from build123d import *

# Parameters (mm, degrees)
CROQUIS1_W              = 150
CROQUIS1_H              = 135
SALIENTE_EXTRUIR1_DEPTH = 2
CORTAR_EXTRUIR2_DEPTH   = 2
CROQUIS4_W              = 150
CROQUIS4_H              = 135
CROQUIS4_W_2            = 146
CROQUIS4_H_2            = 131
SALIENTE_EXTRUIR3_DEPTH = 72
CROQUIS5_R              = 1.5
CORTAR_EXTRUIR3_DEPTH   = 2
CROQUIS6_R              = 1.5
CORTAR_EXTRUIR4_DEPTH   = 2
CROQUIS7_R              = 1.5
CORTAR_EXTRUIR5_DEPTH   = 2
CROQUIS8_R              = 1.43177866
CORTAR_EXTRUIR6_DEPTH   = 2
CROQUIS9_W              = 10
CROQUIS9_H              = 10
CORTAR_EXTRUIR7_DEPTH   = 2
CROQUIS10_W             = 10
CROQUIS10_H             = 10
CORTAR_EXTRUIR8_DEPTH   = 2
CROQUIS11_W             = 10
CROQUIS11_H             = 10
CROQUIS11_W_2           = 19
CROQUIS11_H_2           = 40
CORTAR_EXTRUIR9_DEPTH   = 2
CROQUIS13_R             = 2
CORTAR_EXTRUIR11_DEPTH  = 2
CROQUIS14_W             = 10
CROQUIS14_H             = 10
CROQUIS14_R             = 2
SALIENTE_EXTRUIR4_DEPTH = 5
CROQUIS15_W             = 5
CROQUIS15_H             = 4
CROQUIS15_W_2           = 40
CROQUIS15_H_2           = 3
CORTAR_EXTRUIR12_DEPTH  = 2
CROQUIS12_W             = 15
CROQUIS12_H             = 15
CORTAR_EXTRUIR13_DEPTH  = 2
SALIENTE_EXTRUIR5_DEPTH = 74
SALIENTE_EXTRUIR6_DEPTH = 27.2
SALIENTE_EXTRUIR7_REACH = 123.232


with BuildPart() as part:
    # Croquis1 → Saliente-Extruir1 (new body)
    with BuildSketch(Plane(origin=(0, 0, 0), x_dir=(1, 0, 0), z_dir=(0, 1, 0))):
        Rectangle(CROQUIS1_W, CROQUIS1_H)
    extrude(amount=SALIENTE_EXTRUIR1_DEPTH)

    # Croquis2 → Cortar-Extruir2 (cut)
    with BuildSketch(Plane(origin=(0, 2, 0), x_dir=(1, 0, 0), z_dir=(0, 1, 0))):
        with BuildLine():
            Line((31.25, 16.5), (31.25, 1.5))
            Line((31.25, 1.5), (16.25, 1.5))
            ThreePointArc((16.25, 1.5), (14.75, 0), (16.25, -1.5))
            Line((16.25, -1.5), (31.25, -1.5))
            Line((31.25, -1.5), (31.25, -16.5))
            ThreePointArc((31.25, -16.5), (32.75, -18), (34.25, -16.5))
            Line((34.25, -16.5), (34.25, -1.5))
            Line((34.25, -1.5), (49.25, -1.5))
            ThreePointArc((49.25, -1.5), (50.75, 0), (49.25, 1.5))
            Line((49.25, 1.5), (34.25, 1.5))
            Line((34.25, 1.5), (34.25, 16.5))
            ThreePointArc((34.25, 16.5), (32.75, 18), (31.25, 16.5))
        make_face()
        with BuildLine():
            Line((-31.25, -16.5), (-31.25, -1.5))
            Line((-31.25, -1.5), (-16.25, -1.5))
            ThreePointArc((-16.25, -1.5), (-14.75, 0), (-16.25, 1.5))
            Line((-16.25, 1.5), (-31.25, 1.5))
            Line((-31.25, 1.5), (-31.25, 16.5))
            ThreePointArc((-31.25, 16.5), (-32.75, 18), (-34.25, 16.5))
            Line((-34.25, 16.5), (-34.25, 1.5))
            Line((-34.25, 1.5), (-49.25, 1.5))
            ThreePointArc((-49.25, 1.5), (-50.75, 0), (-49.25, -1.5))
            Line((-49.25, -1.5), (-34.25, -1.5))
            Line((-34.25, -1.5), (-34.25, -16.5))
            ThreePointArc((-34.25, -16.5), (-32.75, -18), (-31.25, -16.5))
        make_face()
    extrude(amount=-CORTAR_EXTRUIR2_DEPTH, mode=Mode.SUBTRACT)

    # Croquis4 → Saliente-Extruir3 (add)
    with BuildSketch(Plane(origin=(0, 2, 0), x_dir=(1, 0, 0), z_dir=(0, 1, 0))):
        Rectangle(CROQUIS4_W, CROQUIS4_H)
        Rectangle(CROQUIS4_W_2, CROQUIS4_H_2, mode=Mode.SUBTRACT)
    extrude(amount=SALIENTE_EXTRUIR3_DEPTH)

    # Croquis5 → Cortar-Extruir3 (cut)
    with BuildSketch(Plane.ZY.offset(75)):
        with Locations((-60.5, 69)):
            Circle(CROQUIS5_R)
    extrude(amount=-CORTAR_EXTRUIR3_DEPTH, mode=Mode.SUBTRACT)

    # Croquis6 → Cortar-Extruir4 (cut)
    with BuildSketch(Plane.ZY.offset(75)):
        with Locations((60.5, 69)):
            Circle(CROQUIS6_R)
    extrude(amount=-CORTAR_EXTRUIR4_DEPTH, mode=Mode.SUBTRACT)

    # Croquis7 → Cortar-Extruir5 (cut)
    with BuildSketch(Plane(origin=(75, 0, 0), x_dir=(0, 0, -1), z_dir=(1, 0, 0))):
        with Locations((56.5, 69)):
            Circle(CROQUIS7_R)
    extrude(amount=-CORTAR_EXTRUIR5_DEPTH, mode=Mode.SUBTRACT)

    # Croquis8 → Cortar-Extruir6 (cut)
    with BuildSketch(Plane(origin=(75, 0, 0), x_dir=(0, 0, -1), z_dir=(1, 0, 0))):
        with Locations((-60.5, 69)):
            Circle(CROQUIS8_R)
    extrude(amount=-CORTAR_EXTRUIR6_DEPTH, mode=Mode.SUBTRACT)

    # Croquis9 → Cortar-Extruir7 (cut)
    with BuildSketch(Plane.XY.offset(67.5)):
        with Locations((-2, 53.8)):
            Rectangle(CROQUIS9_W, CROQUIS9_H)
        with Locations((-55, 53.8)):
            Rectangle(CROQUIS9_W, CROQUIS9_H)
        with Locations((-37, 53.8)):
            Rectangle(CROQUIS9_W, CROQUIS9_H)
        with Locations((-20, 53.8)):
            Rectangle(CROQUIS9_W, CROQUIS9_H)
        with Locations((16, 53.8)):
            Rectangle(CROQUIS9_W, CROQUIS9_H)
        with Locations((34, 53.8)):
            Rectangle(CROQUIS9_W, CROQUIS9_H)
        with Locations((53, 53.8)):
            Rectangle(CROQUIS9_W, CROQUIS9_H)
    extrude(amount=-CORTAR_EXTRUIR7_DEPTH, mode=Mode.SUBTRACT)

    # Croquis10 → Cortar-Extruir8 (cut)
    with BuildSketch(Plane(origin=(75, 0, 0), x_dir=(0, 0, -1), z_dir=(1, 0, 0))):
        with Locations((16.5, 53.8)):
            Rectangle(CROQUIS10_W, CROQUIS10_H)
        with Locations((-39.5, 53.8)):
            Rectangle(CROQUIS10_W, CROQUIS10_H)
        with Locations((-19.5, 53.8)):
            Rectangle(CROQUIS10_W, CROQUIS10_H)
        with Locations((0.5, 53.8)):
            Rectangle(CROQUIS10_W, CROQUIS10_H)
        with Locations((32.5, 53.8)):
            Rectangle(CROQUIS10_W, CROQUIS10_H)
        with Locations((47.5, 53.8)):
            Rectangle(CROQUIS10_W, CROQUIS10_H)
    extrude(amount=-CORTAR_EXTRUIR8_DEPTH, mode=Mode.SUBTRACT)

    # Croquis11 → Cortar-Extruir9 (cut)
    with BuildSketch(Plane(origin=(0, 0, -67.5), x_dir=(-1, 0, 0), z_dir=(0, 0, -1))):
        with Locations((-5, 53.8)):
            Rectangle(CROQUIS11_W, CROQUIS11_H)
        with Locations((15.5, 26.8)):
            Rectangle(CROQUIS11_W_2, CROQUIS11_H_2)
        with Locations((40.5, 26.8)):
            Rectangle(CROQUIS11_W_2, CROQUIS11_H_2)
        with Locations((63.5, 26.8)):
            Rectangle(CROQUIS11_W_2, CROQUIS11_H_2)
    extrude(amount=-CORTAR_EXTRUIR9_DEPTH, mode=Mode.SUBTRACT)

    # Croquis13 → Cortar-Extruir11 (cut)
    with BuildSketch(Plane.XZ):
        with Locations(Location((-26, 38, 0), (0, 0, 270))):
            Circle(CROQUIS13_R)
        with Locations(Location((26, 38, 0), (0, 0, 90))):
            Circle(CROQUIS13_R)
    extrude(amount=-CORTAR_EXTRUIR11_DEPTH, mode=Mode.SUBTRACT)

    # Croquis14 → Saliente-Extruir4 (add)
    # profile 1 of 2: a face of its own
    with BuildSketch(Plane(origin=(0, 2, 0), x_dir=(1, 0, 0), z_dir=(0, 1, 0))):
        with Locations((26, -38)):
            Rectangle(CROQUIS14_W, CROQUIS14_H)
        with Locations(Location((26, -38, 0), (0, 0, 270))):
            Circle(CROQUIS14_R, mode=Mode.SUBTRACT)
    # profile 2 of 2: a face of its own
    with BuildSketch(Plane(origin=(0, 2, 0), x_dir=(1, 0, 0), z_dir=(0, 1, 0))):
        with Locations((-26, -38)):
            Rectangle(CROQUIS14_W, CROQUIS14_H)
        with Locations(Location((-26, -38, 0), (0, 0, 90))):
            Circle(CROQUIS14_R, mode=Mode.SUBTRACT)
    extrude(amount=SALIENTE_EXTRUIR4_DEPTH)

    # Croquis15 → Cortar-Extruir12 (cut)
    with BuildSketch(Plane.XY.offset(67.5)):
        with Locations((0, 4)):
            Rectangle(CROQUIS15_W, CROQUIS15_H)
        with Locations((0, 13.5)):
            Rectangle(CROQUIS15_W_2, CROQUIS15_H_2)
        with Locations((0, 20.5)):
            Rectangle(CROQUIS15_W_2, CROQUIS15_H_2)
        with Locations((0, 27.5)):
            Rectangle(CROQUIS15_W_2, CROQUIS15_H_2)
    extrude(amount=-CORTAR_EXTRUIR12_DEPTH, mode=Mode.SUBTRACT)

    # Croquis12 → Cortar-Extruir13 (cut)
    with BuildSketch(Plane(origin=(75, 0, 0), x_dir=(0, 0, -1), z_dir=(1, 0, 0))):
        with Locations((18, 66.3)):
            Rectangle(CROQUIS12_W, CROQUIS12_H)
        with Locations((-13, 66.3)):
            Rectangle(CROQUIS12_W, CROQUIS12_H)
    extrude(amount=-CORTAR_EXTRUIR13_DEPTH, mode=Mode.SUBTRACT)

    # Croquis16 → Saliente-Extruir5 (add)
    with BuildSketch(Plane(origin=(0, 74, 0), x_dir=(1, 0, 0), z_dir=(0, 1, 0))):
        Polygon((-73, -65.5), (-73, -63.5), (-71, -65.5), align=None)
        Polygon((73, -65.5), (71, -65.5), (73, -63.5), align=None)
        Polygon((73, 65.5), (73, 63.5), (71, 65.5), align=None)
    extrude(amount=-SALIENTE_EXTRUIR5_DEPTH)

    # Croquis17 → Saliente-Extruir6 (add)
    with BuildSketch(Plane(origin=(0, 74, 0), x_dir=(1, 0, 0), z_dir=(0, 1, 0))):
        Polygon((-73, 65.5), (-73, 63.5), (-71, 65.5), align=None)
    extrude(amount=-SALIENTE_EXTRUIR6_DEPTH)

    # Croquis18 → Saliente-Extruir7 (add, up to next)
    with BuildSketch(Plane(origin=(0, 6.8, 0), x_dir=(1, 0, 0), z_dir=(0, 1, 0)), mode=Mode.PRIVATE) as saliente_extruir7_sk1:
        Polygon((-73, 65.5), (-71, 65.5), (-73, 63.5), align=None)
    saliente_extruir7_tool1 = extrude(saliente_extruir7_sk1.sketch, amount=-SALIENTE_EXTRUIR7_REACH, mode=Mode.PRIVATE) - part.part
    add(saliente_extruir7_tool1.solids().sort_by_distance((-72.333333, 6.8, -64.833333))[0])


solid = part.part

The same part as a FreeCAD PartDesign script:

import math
import FreeCAD as App
import Part
import Sketcher

doc = App.newDocument("Part")
body = doc.addObject("PartDesign::Body", "Body")

# Sketch on XZ plane
sketch1 = body.newObject("Sketcher::SketchObject", "Sketch")
sketch1.AttachmentSupport = (doc.getObject("XZ_Plane"), [""])
sketch1.MapMode = "FlatFace"
sketch1.addGeometry([
    Part.LineSegment(App.Vector(-75, -67.5, 0), App.Vector(-75, 67.5, 0)),
    Part.LineSegment(App.Vector(-75, 67.5, 0), App.Vector(75, 67.5, 0)),
    Part.LineSegment(App.Vector(75, 67.5, 0), App.Vector(75, -67.5, 0)),
    Part.LineSegment(App.Vector(75, -67.5, 0), App.Vector(-75, -67.5, 0)),
], False)
sketch1.addConstraint([
    Sketcher.Constraint("Coincident", 0, 2, 1, 1),
    Sketcher.Constraint("Coincident", 1, 2, 2, 1),
    Sketcher.Constraint("Coincident", 2, 2, 3, 1),
    Sketcher.Constraint("Coincident", 3, 2, 0, 1),
    Sketcher.Constraint("Vertical", 0),
    Sketcher.Constraint("Horizontal", 1),
    Sketcher.Constraint("Vertical", 2),
    Sketcher.Constraint("Horizontal", 3),
    Sketcher.Constraint("Symmetric", 0, 2, 2, 2, -1, 1),
    Sketcher.Constraint("DistanceX", 1, 1, 1, 2, 150.0),
    Sketcher.Constraint("DistanceY", 0, 1, 0, 2, 135.0),
])
pad1 = body.newObject("PartDesign::Pad", "Pad")
pad1.Profile = sketch1
pad1.Length = 2
pad1.Reversed = True

# Sketch on XZ plane
sketch2 = body.newObject("Sketcher::SketchObject", "Sketch001")
sketch2.AttachmentSupport = (doc.getObject("XZ_Plane"), [""])
sketch2.MapMode = "FlatFace"
sketch2.AttachmentOffset = App.Placement(App.Vector(0, 0, -2), App.Rotation())
sketch2.addGeometry([
    Part.LineSegment(App.Vector(31.25, -16.5, 0), App.Vector(31.25, -1.5, 0)),  # 0
    Part.LineSegment(App.Vector(31.25, -1.5, 0), App.Vector(16.25, -1.5, 0)),  # 1
    Part.ArcOfCircle(Part.Circle(App.Vector(16.25, 0, 0), App.Vector(0, 0, 1), 1.5), math.radians(90), math.radians(270)),  # 2
    Part.LineSegment(App.Vector(16.25, 1.5, 0), App.Vector(31.25, 1.5, 0)),  # 3
    Part.LineSegment(App.Vector(31.25, 1.5, 0), App.Vector(31.25, 16.5, 0)),  # 4
    Part.ArcOfCircle(Part.Circle(App.Vector(32.75, 16.5, 0), App.Vector(0, 0, 1), 1.5), math.radians(0), math.radians(180)),  # 5
    Part.LineSegment(App.Vector(34.25, 16.5, 0), App.Vector(34.25, 1.5, 0)),  # 6
    Part.LineSegment(App.Vector(34.25, 1.5, 0), App.Vector(49.25, 1.5, 0)),  # 7
    Part.ArcOfCircle(Part.Circle(App.Vector(49.25, 0, 0), App.Vector(0, 0, 1), 1.5), math.radians(-90), math.radians(90)),  # 8
    Part.LineSegment(App.Vector(49.25, -1.5, 0), App.Vector(34.25, -1.5, 0)),  # 9
    Part.LineSegment(App.Vector(34.25, -1.5, 0), App.Vector(34.25, -16.5, 0)),  # 10
    Part.ArcOfCircle(Part.Circle(App.Vector(32.75, -16.5, 0), App.Vector(0, 0, 1), 1.5), math.radians(180), math.radians(360)),  # 11
    Part.LineSegment(App.Vector(-31.25, 16.5, 0), App.Vector(-31.25, 1.5, 0)),  # 12
    Part.LineSegment(App.Vector(-31.25, 1.5, 0), App.Vector(-16.25, 1.5, 0)),  # 13
    Part.ArcOfCircle(Part.Circle(App.Vector(-16.25, 0, 0), App.Vector(0, 0, 1), 1.5), math.radians(-90), math.radians(90)),  # 14
    Part.LineSegment(App.Vector(-16.25, -1.5, 0), App.Vector(-31.25, -1.5, 0)),  # 15
    Part.LineSegment(App.Vector(-31.25, -1.5, 0), App.Vector(-31.25, -16.5, 0)),  # 16
    Part.ArcOfCircle(Part.Circle(App.Vector(-32.75, -16.5, 0), App.Vector(0, 0, 1), 1.5), math.radians(180), math.radians(360)),  # 17
    Part.LineSegment(App.Vector(-34.25, -16.5, 0), App.Vector(-34.25, -1.5, 0)),  # 18
    Part.LineSegment(App.Vector(-34.25, -1.5, 0), App.Vector(-49.25, -1.5, 0)),  # 19
    Part.ArcOfCircle(Part.Circle(App.Vector(-49.25, 0, 0), App.Vector(0, 0, 1), 1.5), math.radians(90), math.radians(270)),  # 20
    Part.LineSegment(App.Vector(-49.25, 1.5, 0), App.Vector(-34.25, 1.5, 0)),  # 21
    Part.LineSegment(App.Vector(-34.25, 1.5, 0), App.Vector(-34.25, 16.5, 0)),  # 22
    Part.ArcOfCircle(Part.Circle(App.Vector(-32.75, 16.5, 0), App.Vector(0, 0, 1), 1.5), math.radians(0), math.radians(180)),  # 23
], False)
sketch2.addConstraint([
    Sketcher.Constraint("Coincident", 0, 2, 1, 1),
    Sketcher.Constraint("Tangent", 1, 2, 2, 2),
    Sketcher.Constraint("Tangent", 2, 1, 3, 1),
    Sketcher.Constraint("Coincident", 3, 2, 4, 1),
    Sketcher.Constraint("Tangent", 4, 2, 5, 2),
    Sketcher.Constraint("Tangent", 5, 1, 6, 1),
    Sketcher.Constraint("Coincident", 6, 2, 7, 1),
    Sketcher.Constraint("Tangent", 7, 2, 8, 2),
    Sketcher.Constraint("Tangent", 8, 1, 9, 1),
    Sketcher.Constraint("Coincident", 9, 2, 10, 1),
    Sketcher.Constraint("Tangent", 10, 2, 11, 2),
    Sketcher.Constraint("Tangent", 11, 1, 0, 1),
    Sketcher.Constraint("Coincident", 12, 2, 13, 1),
    Sketcher.Constraint("Tangent", 13, 2, 14, 2),
    Sketcher.Constraint("Tangent", 14, 1, 15, 1),
    Sketcher.Constraint("Coincident", 15, 2, 16, 1),
    Sketcher.Constraint("Tangent", 16, 2, 17, 2),
    Sketcher.Constraint("Tangent", 17, 1, 18, 1),
    Sketcher.Constraint("Coincident", 18, 2, 19, 1),
    Sketcher.Constraint("Tangent", 19, 2, 20, 2),
    Sketcher.Constraint("Tangent", 20, 1, 21, 1),
    Sketcher.Constraint("Coincident", 21, 2, 22, 1),
    Sketcher.Constraint("Tangent", 22, 2, 23, 2),
    Sketcher.Constraint("Tangent", 23, 1, 12, 1),
    Sketcher.Constraint("Vertical", 0),
    Sketcher.Constraint("Horizontal", 1),
    Sketcher.Constraint("Horizontal", 3),
    Sketcher.Constraint("Vertical", 4),
    Sketcher.Constraint("Vertical", 6),
    Sketcher.Constraint("Horizontal", 7),
    Sketcher.Constraint("Horizontal", 9),
    Sketcher.Constraint("Vertical", 10),
    Sketcher.Constraint("Vertical", 12),
    Sketcher.Constraint("Horizontal", 13),
    Sketcher.Constraint("Horizontal", 15),
    Sketcher.Constraint("Vertical", 16),
    Sketcher.Constraint("Vertical", 18),
    Sketcher.Constraint("Horizontal", 19),
    Sketcher.Constraint("Horizontal", 21),
    Sketcher.Constraint("Vertical", 22),
    Sketcher.Constraint("Equal", 2, 5),
    Sketcher.Constraint("Equal", 5, 8),
    Sketcher.Constraint("Equal", 8, 11),
    Sketcher.Constraint("Equal", 11, 14),
    Sketcher.Constraint("Equal", 14, 17),
    Sketcher.Constraint("Equal", 17, 20),
    Sketcher.Constraint("Equal", 20, 23),
    Sketcher.Constraint("Symmetric", 2, 3, 14, 3, -1, 1),
    Sketcher.Constraint("Symmetric", 5, 3, 17, 3, -1, 1),
    Sketcher.Constraint("Symmetric", 8, 3, 20, 3, -1, 1),
    Sketcher.Constraint("Symmetric", 11, 3, 23, 3, -1, 1),
    Sketcher.Constraint("Symmetric", 11, 3, 17, 3, -2),
    Sketcher.Constraint("PointOnObject", 2, 3, -1),
    Sketcher.Constraint("PointOnObject", 8, 3, -1),
    Sketcher.Constraint("Equal", 3, 7),
    Sketcher.Constraint("Equal", 21, 0),
    Sketcher.Constraint("Radius", 2, 1.5),
    Sketcher.Constraint("DistanceX", 1, 2, 1, 1, 15.0),
    Sketcher.Constraint("DistanceX", 14, 3, 5, 3, 49.0),
])
pocket1 = body.newObject("PartDesign::Pocket", "Pocket")
pocket1.Profile = sketch2
pocket1.Length = 2
pocket1.Reversed = True

# Sketch on XZ plane
sketch3 = body.newObject("Sketcher::SketchObject", "Sketch002")
sketch3.AttachmentSupport = (doc.getObject("XZ_Plane"), [""])
sketch3.MapMode = "FlatFace"
sketch3.AttachmentOffset = App.Placement(App.Vector(0, 0, -2), App.Rotation())
sketch3.addGeometry([
    Part.LineSegment(App.Vector(-75, -67.5, 0), App.Vector(-75, 67.5, 0)),  # 0
    Part.LineSegment(App.Vector(-75, 67.5, 0), App.Vector(75, 67.5, 0)),  # 1
    Part.LineSegment(App.Vector(75, 67.5, 0), App.Vector(75, -67.5, 0)),  # 2
    Part.LineSegment(App.Vector(75, -67.5, 0), App.Vector(-75, -67.5, 0)),  # 3
    Part.LineSegment(App.Vector(73, 65.5, 0), App.Vector(-73, 65.5, 0)),  # 4
    Part.LineSegment(App.Vector(-73, 65.5, 0), App.Vector(-73, -65.5, 0)),  # 5
    Part.LineSegment(App.Vector(-73, -65.5, 0), App.Vector(73, -65.5, 0)),  # 6
    Part.LineSegment(App.Vector(73, -65.5, 0), App.Vector(73, 65.5, 0)),  # 7
], False)
sketch3.addConstraint([
    Sketcher.Constraint("Coincident", 0, 2, 1, 1),
    Sketcher.Constraint("Coincident", 1, 2, 2, 1),
    Sketcher.Constraint("Coincident", 2, 2, 3, 1),
    Sketcher.Constraint("Coincident", 3, 2, 0, 1),
    Sketcher.Constraint("Coincident", 4, 2, 5, 1),
    Sketcher.Constraint("Coincident", 5, 2, 6, 1),
    Sketcher.Constraint("Coincident", 6, 2, 7, 1),
    Sketcher.Constraint("Coincident", 7, 2, 4, 1),
    Sketcher.Constraint("Vertical", 0),
    Sketcher.Constraint("Horizontal", 1),
    Sketcher.Constraint("Vertical", 2),
    Sketcher.Constraint("Horizontal", 3),
    Sketcher.Constraint("Horizontal", 4),
    Sketcher.Constraint("Vertical", 5),
    Sketcher.Constraint("Horizontal", 6),
    Sketcher.Constraint("Vertical", 7),
    Sketcher.Constraint("Symmetric", 0, 2, 2, 2, -1, 1),
    Sketcher.Constraint("Symmetric", 4, 2, 6, 2, -1, 1),
    Sketcher.Constraint("DistanceX", 1, 1, 1, 2, 150.0),
    Sketcher.Constraint("DistanceX", 4, 2, 4, 1, 146.0),
    Sketcher.Constraint("DistanceY", 0, 1, 0, 2, 135.0),
    Sketcher.Constraint("DistanceY", 5, 2, 5, 1, 131.0),
])
pad2 = body.newObject("PartDesign::Pad", "Pad001")
pad2.Profile = sketch3
pad2.Length = 72
pad2.Reversed = True

# Sketch on YZ plane
sketch4 = body.newObject("Sketcher::SketchObject", "Sketch003")
sketch4.AttachmentSupport = (doc.getObject("YZ_Plane"), [""])
sketch4.MapMode = "FlatFace"
sketch4.AttachmentOffset = App.Placement(App.Vector(0, 0, -75), App.Rotation())
sketch4.addGeometry(Part.Circle(App.Vector(69, -60.5, 0), App.Vector(0, 0, 1), 1.5), False)
sketch4.addConstraint([
    Sketcher.Constraint("Diameter", 0, 3.0),
    Sketcher.Constraint("DistanceX", -1, 1, 0, 3, 69.0),
    Sketcher.Constraint("DistanceY", 0, 3, -1, 1, 60.5),
])
pocket2 = body.newObject("PartDesign::Pocket", "Pocket001")
pocket2.Profile = sketch4
pocket2.Length = 2
pocket2.Reversed = True

# Sketch on YZ plane
sketch5 = body.newObject("Sketcher::SketchObject", "Sketch004")
sketch5.AttachmentSupport = (doc.getObject("YZ_Plane"), [""])
sketch5.MapMode = "FlatFace"
sketch5.AttachmentOffset = App.Placement(App.Vector(0, 0, -75), App.Rotation())
sketch5.addGeometry(Part.Circle(App.Vector(69, 60.5, 0), App.Vector(0, 0, 1), 1.5), False)
sketch5.addConstraint([
    Sketcher.Constraint("Diameter", 0, 3.0),
    Sketcher.Constraint("DistanceX", -1, 1, 0, 3, 69.0),
    Sketcher.Constraint("DistanceY", -1, 1, 0, 3, 60.5),
])
pocket3 = body.newObject("PartDesign::Pocket", "Pocket002")
pocket3.Profile = sketch5
pocket3.Length = 2
pocket3.Reversed = True

# Sketch on YZ plane
sketch6 = body.newObject("Sketcher::SketchObject", "Sketch005")
sketch6.AttachmentSupport = (doc.getObject("YZ_Plane"), [""])
sketch6.MapMode = "FlatFace"
sketch6.AttachmentOffset = App.Placement(App.Vector(0, 0, 75), App.Rotation())
sketch6.addGeometry(Part.Circle(App.Vector(69, -56.5, 0), App.Vector(0, 0, 1), 1.5), False)
sketch6.addConstraint([
    Sketcher.Constraint("Diameter", 0, 3.0),
    Sketcher.Constraint("DistanceX", -1, 1, 0, 3, 69.0),
    Sketcher.Constraint("DistanceY", 0, 3, -1, 1, 56.5),
])
pocket4 = body.newObject("PartDesign::Pocket", "Pocket003")
pocket4.Profile = sketch6
pocket4.Length = 2

# Sketch on YZ plane
sketch7 = body.newObject("Sketcher::SketchObject", "Sketch006")
sketch7.AttachmentSupport = (doc.getObject("YZ_Plane"), [""])
sketch7.MapMode = "FlatFace"
sketch7.AttachmentOffset = App.Placement(App.Vector(0, 0, 75), App.Rotation())
sketch7.addGeometry(Part.Circle(App.Vector(69, 60.5, 0), App.Vector(0, 0, 1), 1.431779), False)
sketch7.addConstraint([
    Sketcher.Constraint("DistanceX", -1, 1, 0, 3, 69.0),
    Sketcher.Constraint("DistanceY", -1, 1, 0, 3, 60.5),
    Sketcher.Constraint("Diameter", 0, 2.863557),
])
pocket5 = body.newObject("PartDesign::Pocket", "Pocket004")
pocket5.Profile = sketch7
pocket5.Length = 2

# Sketch on XY plane
sketch8 = body.newObject("Sketcher::SketchObject", "Sketch007")
sketch8.AttachmentSupport = (doc.getObject("XY_Plane"), [""])
sketch8.MapMode = "FlatFace"
sketch8.AttachmentOffset = App.Placement(App.Vector(0, 0, 67.5), App.Rotation())
sketch8.addGeometry([
    Part.LineSegment(App.Vector(-7, 58.8, 0), App.Vector(-7, 48.8, 0)),  # 0
    Part.LineSegment(App.Vector(-7, 48.8, 0), App.Vector(3, 48.8, 0)),  # 1
    Part.LineSegment(App.Vector(3, 48.8, 0), App.Vector(3, 58.8, 0)),  # 2
    Part.LineSegment(App.Vector(3, 58.8, 0), App.Vector(-7, 58.8, 0)),  # 3
    Part.LineSegment(App.Vector(-60, 58.8, 0), App.Vector(-60, 48.8, 0)),  # 4
    Part.LineSegment(App.Vector(-60, 48.8, 0), App.Vector(-50, 48.8, 0)),  # 5
    Part.LineSegment(App.Vector(-50, 48.8, 0), App.Vector(-50, 58.8, 0)),  # 6
    Part.LineSegment(App.Vector(-50, 58.8, 0), App.Vector(-60, 58.8, 0)),  # 7
    Part.LineSegment(App.Vector(-42, 58.8, 0), App.Vector(-42, 48.8, 0)),  # 8
    Part.LineSegment(App.Vector(-42, 48.8, 0), App.Vector(-32, 48.8, 0)),  # 9
    Part.LineSegment(App.Vector(-32, 48.8, 0), App.Vector(-32, 58.8, 0)),  # 10
    Part.LineSegment(App.Vector(-32, 58.8, 0), App.Vector(-42, 58.8, 0)),  # 11
    Part.LineSegment(App.Vector(-25, 58.8, 0), App.Vector(-25, 48.8, 0)),  # 12
    Part.LineSegment(App.Vector(-25, 48.8, 0), App.Vector(-15, 48.8, 0)),  # 13
    Part.LineSegment(App.Vector(-15, 48.8, 0), App.Vector(-15, 58.8, 0)),  # 14
    Part.LineSegment(App.Vector(-15, 58.8, 0), App.Vector(-25, 58.8, 0)),  # 15
    Part.LineSegment(App.Vector(11, 58.8, 0), App.Vector(11, 48.8, 0)),  # 16
    Part.LineSegment(App.Vector(11, 48.8, 0), App.Vector(21, 48.8, 0)),  # 17
    Part.LineSegment(App.Vector(21, 48.8, 0), App.Vector(21, 58.8, 0)),  # 18
    Part.LineSegment(App.Vector(21, 58.8, 0), App.Vector(11, 58.8, 0)),  # 19
    Part.LineSegment(App.Vector(29, 58.8, 0), App.Vector(29, 48.8, 0)),  # 20
    Part.LineSegment(App.Vector(29, 48.8, 0), App.Vector(39, 48.8, 0)),  # 21
    Part.LineSegment(App.Vector(39, 48.8, 0), App.Vector(39, 58.8, 0)),  # 22
    Part.LineSegment(App.Vector(39, 58.8, 0), App.Vector(29, 58.8, 0)),  # 23
    Part.LineSegment(App.Vector(48, 58.8, 0), App.Vector(48, 48.8, 0)),  # 24
    Part.LineSegment(App.Vector(48, 48.8, 0), App.Vector(58, 48.8, 0)),  # 25
    Part.LineSegment(App.Vector(58, 48.8, 0), App.Vector(58, 58.8, 0)),  # 26
    Part.LineSegment(App.Vector(58, 58.8, 0), App.Vector(48, 58.8, 0)),  # 27
], False)
sketch8.addConstraint([
    Sketcher.Constraint("Coincident", 0, 2, 1, 1),
    Sketcher.Constraint("Coincident", 1, 2, 2, 1),
    Sketcher.Constraint("Coincident", 2, 2, 3, 1),
    Sketcher.Constraint("Coincident", 3, 2, 0, 1),
    Sketcher.Constraint("Coincident", 4, 2, 5, 1),
    Sketcher.Constraint("Coincident", 5, 2, 6, 1),
    Sketcher.Constraint("Coincident", 6, 2, 7, 1),
    Sketcher.Constraint("Coincident", 7, 2, 4, 1),
    Sketcher.Constraint("Coincident", 8, 2, 9, 1),
    Sketcher.Constraint("Coincident", 9, 2, 10, 1),
    Sketcher.Constraint("Coincident", 10, 2, 11, 1),
    Sketcher.Constraint("Coincident", 11, 2, 8, 1),
    Sketcher.Constraint("Coincident", 12, 2, 13, 1),
    Sketcher.Constraint("Coincident", 13, 2, 14, 1),
    Sketcher.Constraint("Coincident", 14, 2, 15, 1),
    Sketcher.Constraint("Coincident", 15, 2, 12, 1),
    Sketcher.Constraint("Coincident", 16, 2, 17, 1),
    Sketcher.Constraint("Coincident", 17, 2, 18, 1),
    Sketcher.Constraint("Coincident", 18, 2, 19, 1),
    Sketcher.Constraint("Coincident", 19, 2, 16, 1),
    Sketcher.Constraint("Coincident", 20, 2, 21, 1),
    Sketcher.Constraint("Coincident", 21, 2, 22, 1),
    Sketcher.Constraint("Coincident", 22, 2, 23, 1),
    Sketcher.Constraint("Coincident", 23, 2, 20, 1),
    Sketcher.Constraint("Coincident", 24, 2, 25, 1),
    Sketcher.Constraint("Coincident", 25, 2, 26, 1),
    Sketcher.Constraint("Coincident", 26, 2, 27, 1),
    Sketcher.Constraint("Coincident", 27, 2, 24, 1),
    Sketcher.Constraint("Vertical", 0),
    Sketcher.Constraint("Horizontal", 1),
    Sketcher.Constraint("Vertical", 2),
    Sketcher.Constraint("Horizontal", 3),
    Sketcher.Constraint("Vertical", 4),
    Sketcher.Constraint("Horizontal", 5),
    Sketcher.Constraint("Vertical", 6),
    Sketcher.Constraint("Horizontal", 7),
    Sketcher.Constraint("Vertical", 8),
    Sketcher.Constraint("Horizontal", 9),
    Sketcher.Constraint("Vertical", 10),
    Sketcher.Constraint("Horizontal", 11),
    Sketcher.Constraint("Vertical", 12),
    Sketcher.Constraint("Horizontal", 13),
    Sketcher.Constraint("Vertical", 14),
    Sketcher.Constraint("Horizontal", 15),
    Sketcher.Constraint("Vertical", 16),
    Sketcher.Constraint("Horizontal", 17),
    Sketcher.Constraint("Vertical", 18),
    Sketcher.Constraint("Horizontal", 19),
    Sketcher.Constraint("Vertical", 20),
    Sketcher.Constraint("Horizontal", 21),
    Sketcher.Constraint("Vertical", 22),
    Sketcher.Constraint("Horizontal", 23),
    Sketcher.Constraint("Vertical", 24),
    Sketcher.Constraint("Horizontal", 25),
    Sketcher.Constraint("Vertical", 26),
    Sketcher.Constraint("Horizontal", 27),
    Sketcher.Constraint("Horizontal", 1, 2, 4, 2),
    Sketcher.Constraint("Horizontal", 3, 2, 6, 2),
    Sketcher.Constraint("Horizontal", 5, 2, 8, 2),
    Sketcher.Constraint("Horizontal", 7, 2, 10, 2),
    Sketcher.Constraint("Horizontal", 9, 2, 12, 2),
    Sketcher.Constraint("Horizontal", 11, 2, 14, 2),
    Sketcher.Constraint("Horizontal", 13, 2, 16, 2),
    Sketcher.Constraint("Horizontal", 15, 2, 18, 2),
    Sketcher.Constraint("Horizontal", 17, 2, 20, 2),
    Sketcher.Constraint("Horizontal", 19, 2, 22, 2),
    Sketcher.Constraint("Horizontal", 21, 2, 24, 2),
    Sketcher.Constraint("Horizontal", 23, 2, 26, 2),
    Sketcher.Constraint("Equal", 3, 5),
    Sketcher.Constraint("Equal", 7, 9),
    Sketcher.Constraint("Equal", 11, 13),
    Sketcher.Constraint("Equal", 15, 17),
    Sketcher.Constraint("Equal", 19, 21),
    Sketcher.Constraint("Equal", 23, 25),
    Sketcher.Constraint("Equal", 27, 0),
    Sketcher.Constraint("DistanceX", 1, 1, 1, 2, 10.0),
    Sketcher.Constraint("DistanceX", 0, 2, -1, 1, 7.0),
    Sketcher.Constraint("DistanceX", 4, 2, -1, 1, 60.0),
    Sketcher.Constraint("DistanceX", 8, 2, -1, 1, 42.0),
    Sketcher.Constraint("DistanceX", 12, 2, -1, 1, 25.0),
    Sketcher.Constraint("DistanceX", -1, 1, 16, 2, 11.0),
    Sketcher.Constraint("DistanceX", -1, 1, 20, 2, 29.0),
    Sketcher.Constraint("DistanceX", -1, 1, 24, 2, 48.0),
    Sketcher.Constraint("DistanceY", -1, 1, 0, 2, 48.8),
])
pocket6 = body.newObject("PartDesign::Pocket", "Pocket005")
pocket6.Profile = sketch8
pocket6.Length = 2

# Sketch on YZ plane
sketch9 = body.newObject("Sketcher::SketchObject", "Sketch008")
sketch9.AttachmentSupport = (doc.getObject("YZ_Plane"), [""])
sketch9.MapMode = "FlatFace"
sketch9.AttachmentOffset = App.Placement(App.Vector(0, 0, 75), App.Rotation())
sketch9.addGeometry([
    Part.LineSegment(App.Vector(58.8, -11.5, 0), App.Vector(48.8, -11.5, 0)),  # 0
    Part.LineSegment(App.Vector(48.8, -11.5, 0), App.Vector(48.8, -21.5, 0)),  # 1
    Part.LineSegment(App.Vector(48.8, -21.5, 0), App.Vector(58.8, -21.5, 0)),  # 2
    Part.LineSegment(App.Vector(58.8, -21.5, 0), App.Vector(58.8, -11.5, 0)),  # 3
    Part.LineSegment(App.Vector(58.8, 44.5, 0), App.Vector(48.8, 44.5, 0)),  # 4
    Part.LineSegment(App.Vector(48.8, 44.5, 0), App.Vector(48.8, 34.5, 0)),  # 5
    Part.LineSegment(App.Vector(48.8, 34.5, 0), App.Vector(58.8, 34.5, 0)),  # 6
    Part.LineSegment(App.Vector(58.8, 34.5, 0), App.Vector(58.8, 44.5, 0)),  # 7
    Part.LineSegment(App.Vector(58.8, 24.5, 0), App.Vector(48.8, 24.5, 0)),  # 8
    Part.LineSegment(App.Vector(48.8, 24.5, 0), App.Vector(48.8, 14.5, 0)),  # 9
    Part.LineSegment(App.Vector(48.8, 14.5, 0), App.Vector(58.8, 14.5, 0)),  # 10
    Part.LineSegment(App.Vector(58.8, 14.5, 0), App.Vector(58.8, 24.5, 0)),  # 11
    Part.LineSegment(App.Vector(58.8, 4.5, 0), App.Vector(48.8, 4.5, 0)),  # 12
    Part.LineSegment(App.Vector(48.8, 4.5, 0), App.Vector(48.8, -5.5, 0)),  # 13
    Part.LineSegment(App.Vector(48.8, -5.5, 0), App.Vector(58.8, -5.5, 0)),  # 14
    Part.LineSegment(App.Vector(58.8, -5.5, 0), App.Vector(58.8, 4.5, 0)),  # 15
    Part.LineSegment(App.Vector(58.8, -27.5, 0), App.Vector(48.8, -27.5, 0)),  # 16
    Part.LineSegment(App.Vector(48.8, -27.5, 0), App.Vector(48.8, -37.5, 0)),  # 17
    Part.LineSegment(App.Vector(48.8, -37.5, 0), App.Vector(58.8, -37.5, 0)),  # 18
    Part.LineSegment(App.Vector(58.8, -37.5, 0), App.Vector(58.8, -27.5, 0)),  # 19
    Part.LineSegment(App.Vector(58.8, -42.5, 0), App.Vector(48.8, -42.5, 0)),  # 20
    Part.LineSegment(App.Vector(48.8, -42.5, 0), App.Vector(48.8, -52.5, 0)),  # 21
    Part.LineSegment(App.Vector(48.8, -52.5, 0), App.Vector(58.8, -52.5, 0)),  # 22
    Part.LineSegment(App.Vector(58.8, -52.5, 0), App.Vector(58.8, -42.5, 0)),  # 23
], False)
sketch9.addConstraint([
    Sketcher.Constraint("Coincident", 0, 2, 1, 1),
    Sketcher.Constraint("Coincident", 1, 2, 2, 1),
    Sketcher.Constraint("Coincident", 2, 2, 3, 1),
    Sketcher.Constraint("Coincident", 3, 2, 0, 1),
    Sketcher.Constraint("Coincident", 4, 2, 5, 1),
    Sketcher.Constraint("Coincident", 5, 2, 6, 1),
    Sketcher.Constraint("Coincident", 6, 2, 7, 1),
    Sketcher.Constraint("Coincident", 7, 2, 4, 1),
    Sketcher.Constraint("Coincident", 8, 2, 9, 1),
    Sketcher.Constraint("Coincident", 9, 2, 10, 1),
    Sketcher.Constraint("Coincident", 10, 2, 11, 1),
    Sketcher.Constraint("Coincident", 11, 2, 8, 1),
    Sketcher.Constraint("Coincident", 12, 2, 13, 1),
    Sketcher.Constraint("Coincident", 13, 2, 14, 1),
    Sketcher.Constraint("Coincident", 14, 2, 15, 1),
    Sketcher.Constraint("Coincident", 15, 2, 12, 1),
    Sketcher.Constraint("Coincident", 16, 2, 17, 1),
    Sketcher.Constraint("Coincident", 17, 2, 18, 1),
    Sketcher.Constraint("Coincident", 18, 2, 19, 1),
    Sketcher.Constraint("Coincident", 19, 2, 16, 1),
    Sketcher.Constraint("Coincident", 20, 2, 21, 1),
    Sketcher.Constraint("Coincident", 21, 2, 22, 1),
    Sketcher.Constraint("Coincident", 22, 2, 23, 1),
    Sketcher.Constraint("Coincident", 23, 2, 20, 1),
    Sketcher.Constraint("Horizontal", 0),
    Sketcher.Constraint("Vertical", 1),
    Sketcher.Constraint("Horizontal", 2),
    Sketcher.Constraint("Vertical", 3),
    Sketcher.Constraint("Horizontal", 4),
    Sketcher.Constraint("Vertical", 5),
    Sketcher.Constraint("Horizontal", 6),
    Sketcher.Constraint("Vertical", 7),
    Sketcher.Constraint("Horizontal", 8),
    Sketcher.Constraint("Vertical", 9),
    Sketcher.Constraint("Horizontal", 10),
    Sketcher.Constraint("Vertical", 11),
    Sketcher.Constraint("Horizontal", 12),
    Sketcher.Constraint("Vertical", 13),
    Sketcher.Constraint("Horizontal", 14),
    Sketcher.Constraint("Vertical", 15),
    Sketcher.Constraint("Horizontal", 16),
    Sketcher.Constraint("Vertical", 17),
    Sketcher.Constraint("Horizontal", 18),
    Sketcher.Constraint("Vertical", 19),
    Sketcher.Constraint("Horizontal", 20),
    Sketcher.Constraint("Vertical", 21),
    Sketcher.Constraint("Horizontal", 22),
    Sketcher.Constraint("Vertical", 23),
    Sketcher.Constraint("Vertical", 1, 2, 4, 2),
    Sketcher.Constraint("Vertical", 3, 2, 6, 2),
    Sketcher.Constraint("Vertical", 5, 2, 8, 2),
    Sketcher.Constraint("Vertical", 7, 2, 10, 2),
    Sketcher.Constraint("Vertical", 9, 2, 12, 2),
    Sketcher.Constraint("Vertical", 11, 2, 14, 2),
    Sketcher.Constraint("Vertical", 13, 2, 16, 2),
    Sketcher.Constraint("Vertical", 15, 2, 18, 2),
    Sketcher.Constraint("Vertical", 17, 2, 20, 2),
    Sketcher.Constraint("Vertical", 19, 2, 22, 2),
    Sketcher.Constraint("Equal", 22, 1),
    Sketcher.Constraint("Equal", 3, 5),
    Sketcher.Constraint("Equal", 7, 9),
    Sketcher.Constraint("Equal", 11, 13),
    Sketcher.Constraint("Equal", 15, 17),
    Sketcher.Constraint("Equal", 19, 21),
    Sketcher.Constraint("DistanceX", 0, 2, 0, 1, 10.0),
    Sketcher.Constraint("DistanceY", 0, 2, 4, 2, 56.0),
    Sketcher.Constraint("DistanceY", 8, 2, 5, 2, 10.0),
    Sketcher.Constraint("DistanceY", 12, 2, 9, 2, 10.0),
    Sketcher.Constraint("DistanceY", 16, 2, 1, 2, 6.0),
    Sketcher.Constraint("DistanceY", 20, 2, 17, 2, 5.0),
    Sketcher.Constraint("DistanceX", -1, 1, 0, 2, 48.8),
    Sketcher.Constraint("DistanceY", 0, 2, -1, 1, 11.5),
])
pocket7 = body.newObject("PartDesign::Pocket", "Pocket006")
pocket7.Profile = sketch9
pocket7.Length = 2

# Sketch on XY plane
sketch10 = body.newObject("Sketcher::SketchObject", "Sketch009")
sketch10.AttachmentSupport = (doc.getObject("XY_Plane"), [""])
sketch10.MapMode = "FlatFace"
sketch10.AttachmentOffset = App.Placement(App.Vector(0, 0, -67.5), App.Rotation())
sketch10.addGeometry([
    Part.LineSegment(App.Vector(10, 58.8, 0), App.Vector(10, 48.8, 0)),  # 0
    Part.LineSegment(App.Vector(10, 48.8, 0), App.Vector(0, 48.8, 0)),  # 1
    Part.LineSegment(App.Vector(0, 48.8, 0), App.Vector(0, 58.8, 0)),  # 2
    Part.LineSegment(App.Vector(0, 58.8, 0), App.Vector(10, 58.8, 0)),  # 3
    Part.LineSegment(App.Vector(-6, 46.8, 0), App.Vector(-6, 6.8, 0)),  # 4
    Part.LineSegment(App.Vector(-6, 6.8, 0), App.Vector(-25, 6.8, 0)),  # 5
    Part.LineSegment(App.Vector(-25, 6.8, 0), App.Vector(-25, 46.8, 0)),  # 6
    Part.LineSegment(App.Vector(-25, 46.8, 0), App.Vector(-6, 46.8, 0)),  # 7
    Part.LineSegment(App.Vector(-31, 46.8, 0), App.Vector(-31, 6.8, 0)),  # 8
    Part.LineSegment(App.Vector(-31, 6.8, 0), App.Vector(-50, 6.8, 0)),  # 9
    Part.LineSegment(App.Vector(-50, 6.8, 0), App.Vector(-50, 46.8, 0)),  # 10
    Part.LineSegment(App.Vector(-50, 46.8, 0), App.Vector(-31, 46.8, 0)),  # 11
    Part.LineSegment(App.Vector(-54, 46.8, 0), App.Vector(-54, 6.8, 0)),  # 12
    Part.LineSegment(App.Vector(-54, 6.8, 0), App.Vector(-73, 6.8, 0)),  # 13
    Part.LineSegment(App.Vector(-73, 6.8, 0), App.Vector(-73, 46.8, 0)),  # 14
    Part.LineSegment(App.Vector(-73, 46.8, 0), App.Vector(-54, 46.8, 0)),  # 15
], False)
sketch10.addConstraint([
    Sketcher.Constraint("Coincident", 0, 2, 1, 1),
    Sketcher.Constraint("Coincident", 1, 2, 2, 1),
    Sketcher.Constraint("Coincident", 2, 2, 3, 1),
    Sketcher.Constraint("Coincident", 3, 2, 0, 1),
    Sketcher.Constraint("Coincident", 4, 2, 5, 1),
    Sketcher.Constraint("Coincident", 5, 2, 6, 1),
    Sketcher.Constraint("Coincident", 6, 2, 7, 1),
    Sketcher.Constraint("Coincident", 7, 2, 4, 1),
    Sketcher.Constraint("Coincident", 8, 2, 9, 1),
    Sketcher.Constraint("Coincident", 9, 2, 10, 1),
    Sketcher.Constraint("Coincident", 10, 2, 11, 1),
    Sketcher.Constraint("Coincident", 11, 2, 8, 1),
    Sketcher.Constraint("Coincident", 12, 2, 13, 1),
    Sketcher.Constraint("Coincident", 13, 2, 14, 1),
    Sketcher.Constraint("Coincident", 14, 2, 15, 1),
    Sketcher.Constraint("Coincident", 15, 2, 12, 1),
    Sketcher.Constraint("Vertical", 0),
    Sketcher.Constraint("Horizontal", 1),
    Sketcher.Constraint("Vertical", 2),
    Sketcher.Constraint("Horizontal", 3),
    Sketcher.Constraint("Vertical", 4),
    Sketcher.Constraint("Horizontal", 5),
    Sketcher.Constraint("Vertical", 6),
    Sketcher.Constraint("Horizontal", 7),
    Sketcher.Constraint("Vertical", 8),
    Sketcher.Constraint("Horizontal", 9),
    Sketcher.Constraint("Vertical", 10),
    Sketcher.Constraint("Horizontal", 11),
    Sketcher.Constraint("Vertical", 12),
    Sketcher.Constraint("Horizontal", 13),
    Sketcher.Constraint("Vertical", 14),
    Sketcher.Constraint("Horizontal", 15),
    Sketcher.Constraint("PointOnObject", 1, 2, -2),
    Sketcher.Constraint("Horizontal", 5, 2, 8, 2),
    Sketcher.Constraint("Horizontal", 7, 2, 10, 2),
    Sketcher.Constraint("Horizontal", 9, 2, 12, 2),
    Sketcher.Constraint("Horizontal", 11, 2, 14, 2),
    Sketcher.Constraint("Equal", 7, 9),
    Sketcher.Constraint("Equal", 11, 13),
    Sketcher.Constraint("Equal", 3, 0),
    Sketcher.Constraint("DistanceX", 1, 2, 1, 1, 10.0),
    Sketcher.Constraint("DistanceX", 5, 2, 5, 1, 19.0),
    Sketcher.Constraint("DistanceY", 4, 2, 4, 1, 40.0),
    Sketcher.Constraint("DistanceX", 4, 2, -1, 1, 6.0),
    Sketcher.Constraint("DistanceX", 8, 2, -1, 1, 31.0),
    Sketcher.Constraint("DistanceX", 12, 2, -1, 1, 54.0),
    Sketcher.Constraint("DistanceY", 4, 2, 1, 2, 42.0),
    Sketcher.Constraint("DistanceY", -1, 1, 0, 2, 48.8),
])
pocket8 = body.newObject("PartDesign::Pocket", "Pocket007")
pocket8.Profile = sketch10
pocket8.Length = 2
pocket8.Reversed = True

# Sketch on XZ plane
sketch11 = body.newObject("Sketcher::SketchObject", "Sketch010")
sketch11.AttachmentSupport = (doc.getObject("XZ_Plane"), [""])
sketch11.MapMode = "FlatFace"
sketch11.addGeometry([
    Part.Circle(App.Vector(-26, 38, 0), App.Vector(0, 0, 1), 2),
    Part.Circle(App.Vector(26, 38, 0), App.Vector(0, 0, 1), 2),
], False)
sketch11.addConstraint([
    Sketcher.Constraint("Equal", 0, 1),
    Sketcher.Constraint("Symmetric", 0, 3, 1, 3, -2),
    Sketcher.Constraint("Diameter", 0, 4.0),
    Sketcher.Constraint("DistanceX", 0, 3, -1, 1, 26.0),
    Sketcher.Constraint("DistanceY", -1, 1, 0, 3, 38.0),
])
pocket9 = body.newObject("PartDesign::Pocket", "Pocket008")
pocket9.Profile = sketch11
pocket9.Length = 2

# Sketch on XZ plane
sketch12 = body.newObject("Sketcher::SketchObject", "Sketch011")
sketch12.AttachmentSupport = (doc.getObject("XZ_Plane"), [""])
sketch12.MapMode = "FlatFace"
sketch12.AttachmentOffset = App.Placement(App.Vector(0, 0, -2), App.Rotation())
sketch12.addGeometry([
    Part.LineSegment(App.Vector(21, 33, 0), App.Vector(21, 43, 0)),  # 0
    Part.LineSegment(App.Vector(21, 43, 0), App.Vector(31, 43, 0)),  # 1
    Part.LineSegment(App.Vector(31, 43, 0), App.Vector(31, 33, 0)),  # 2
    Part.LineSegment(App.Vector(31, 33, 0), App.Vector(21, 33, 0)),  # 3
    Part.Circle(App.Vector(26, 38, 0), App.Vector(0, 0, 1), 2),  # 4
    Part.LineSegment(App.Vector(-31, 33, 0), App.Vector(-31, 43, 0)),  # 5
    Part.LineSegment(App.Vector(-31, 43, 0), App.Vector(-21, 43, 0)),  # 6
    Part.LineSegment(App.Vector(-21, 43, 0), App.Vector(-21, 33, 0)),  # 7
    Part.LineSegment(App.Vector(-21, 33, 0), App.Vector(-31, 33, 0)),  # 8
    Part.Circle(App.Vector(-26, 38, 0), App.Vector(0, 0, 1), 2),  # 9
], False)
sketch12.addConstraint([
    Sketcher.Constraint("Coincident", 0, 2, 1, 1),
    Sketcher.Constraint("Coincident", 1, 2, 2, 1),
    Sketcher.Constraint("Coincident", 2, 2, 3, 1),
    Sketcher.Constraint("Coincident", 3, 2, 0, 1),
    Sketcher.Constraint("Coincident", 5, 2, 6, 1),
    Sketcher.Constraint("Coincident", 6, 2, 7, 1),
    Sketcher.Constraint("Coincident", 7, 2, 8, 1),
    Sketcher.Constraint("Coincident", 8, 2, 5, 1),
    Sketcher.Constraint("Vertical", 0),
    Sketcher.Constraint("Horizontal", 1),
    Sketcher.Constraint("Vertical", 2),
    Sketcher.Constraint("Horizontal", 3),
    Sketcher.Constraint("Vertical", 5),
    Sketcher.Constraint("Horizontal", 6),
    Sketcher.Constraint("Vertical", 7),
    Sketcher.Constraint("Horizontal", 8),
    Sketcher.Constraint("Equal", 4, 9),
    Sketcher.Constraint("Symmetric", 4, 3, 9, 3, -2),
    Sketcher.Constraint("Symmetric", 1, 2, 5, 2, -2),
    Sketcher.Constraint("Symmetric", 3, 2, 7, 2, -2),
    Sketcher.Constraint("Equal", 8, 0),
    Sketcher.Constraint("Diameter", 4, 4.0),
    Sketcher.Constraint("DistanceX", 1, 1, 1, 2, 10.0),
    Sketcher.Constraint("DistanceX", -1, 1, 4, 3, 26.0),
    Sketcher.Constraint("DistanceY", -1, 1, 4, 3, 38.0),
    Sketcher.Constraint("DistanceX", -1, 1, 0, 2, 21.0),
    Sketcher.Constraint("DistanceY", -1, 1, 0, 2, 43.0),
])
pad3 = body.newObject("PartDesign::Pad", "Pad002")
pad3.Profile = sketch12
pad3.Length = 5
pad3.Reversed = True

# Sketch on XY plane
sketch13 = body.newObject("Sketcher::SketchObject", "Sketch012")
sketch13.AttachmentSupport = (doc.getObject("XY_Plane"), [""])
sketch13.MapMode = "FlatFace"
sketch13.AttachmentOffset = App.Placement(App.Vector(0, 0, 67.5), App.Rotation())
sketch13.addGeometry([
    Part.LineSegment(App.Vector(-2.5, 6, 0), App.Vector(-2.5, 2, 0)),  # 0
    Part.LineSegment(App.Vector(-2.5, 2, 0), App.Vector(2.5, 2, 0)),  # 1
    Part.LineSegment(App.Vector(2.5, 2, 0), App.Vector(2.5, 6, 0)),  # 2
    Part.LineSegment(App.Vector(2.5, 6, 0), App.Vector(-2.5, 6, 0)),  # 3
    Part.LineSegment(App.Vector(-20, 15, 0), App.Vector(-20, 12, 0)),  # 4
    Part.LineSegment(App.Vector(-20, 12, 0), App.Vector(20, 12, 0)),  # 5
    Part.LineSegment(App.Vector(20, 12, 0), App.Vector(20, 15, 0)),  # 6
    Part.LineSegment(App.Vector(20, 15, 0), App.Vector(-20, 15, 0)),  # 7
    Part.LineSegment(App.Vector(-20, 22, 0), App.Vector(-20, 19, 0)),  # 8
    Part.LineSegment(App.Vector(-20, 19, 0), App.Vector(20, 19, 0)),  # 9
    Part.LineSegment(App.Vector(20, 19, 0), App.Vector(20, 22, 0)),  # 10
    Part.LineSegment(App.Vector(20, 22, 0), App.Vector(-20, 22, 0)),  # 11
    Part.LineSegment(App.Vector(-20, 29, 0), App.Vector(-20, 26, 0)),  # 12
    Part.LineSegment(App.Vector(-20, 26, 0), App.Vector(20, 26, 0)),  # 13
    Part.LineSegment(App.Vector(20, 26, 0), App.Vector(20, 29, 0)),  # 14
    Part.LineSegment(App.Vector(20, 29, 0), App.Vector(-20, 29, 0)),  # 15
], False)
sketch13.addConstraint([
    Sketcher.Constraint("Coincident", 0, 2, 1, 1),
    Sketcher.Constraint("Coincident", 1, 2, 2, 1),
    Sketcher.Constraint("Coincident", 2, 2, 3, 1),
    Sketcher.Constraint("Coincident", 3, 2, 0, 1),
    Sketcher.Constraint("Coincident", 4, 2, 5, 1),
    Sketcher.Constraint("Coincident", 5, 2, 6, 1),
    Sketcher.Constraint("Coincident", 6, 2, 7, 1),
    Sketcher.Constraint("Coincident", 7, 2, 4, 1),
    Sketcher.Constraint("Coincident", 8, 2, 9, 1),
    Sketcher.Constraint("Coincident", 9, 2, 10, 1),
    Sketcher.Constraint("Coincident", 10, 2, 11, 1),
    Sketcher.Constraint("Coincident", 11, 2, 8, 1),
    Sketcher.Constraint("Coincident", 12, 2, 13, 1),
    Sketcher.Constraint("Coincident", 13, 2, 14, 1),
    Sketcher.Constraint("Coincident", 14, 2, 15, 1),
    Sketcher.Constraint("Coincident", 15, 2, 12, 1),
    Sketcher.Constraint("Vertical", 0),
    Sketcher.Constraint("Horizontal", 1),
    Sketcher.Constraint("Vertical", 2),
    Sketcher.Constraint("Horizontal", 3),
    Sketcher.Constraint("Vertical", 4),
    Sketcher.Constraint("Horizontal", 5),
    Sketcher.Constraint("Vertical", 6),
    Sketcher.Constraint("Horizontal", 7),
    Sketcher.Constraint("Vertical", 8),
    Sketcher.Constraint("Horizontal", 9),
    Sketcher.Constraint("Vertical", 10),
    Sketcher.Constraint("Horizontal", 11),
    Sketcher.Constraint("Vertical", 12),
    Sketcher.Constraint("Horizontal", 13),
    Sketcher.Constraint("Vertical", 14),
    Sketcher.Constraint("Horizontal", 15),
    Sketcher.Constraint("Vertical", 7, 2, 8, 2),
    Sketcher.Constraint("Vertical", 6, 2, 9, 2),
    Sketcher.Constraint("Vertical", 11, 2, 12, 2),
    Sketcher.Constraint("Vertical", 10, 2, 13, 2),
    Sketcher.Constraint("Equal", 6, 8),
    Sketcher.Constraint("Equal", 10, 12),
    Sketcher.Constraint("DistanceX", 1, 1, 1, 2, 5.0),
    Sketcher.Constraint("DistanceX", 5, 1, 5, 2, 40.0),
    Sketcher.Constraint("DistanceY", 0, 2, 0, 1, 4.0),
    Sketcher.Constraint("DistanceY", 4, 2, 4, 1, 3.0),
    Sketcher.Constraint("DistanceY", -1, 1, 0, 2, 2.0),
    Sketcher.Constraint("DistanceX", 4, 2, -1, 1, 20.0),
    Sketcher.Constraint("DistanceY", -1, 1, 4, 2, 12.0),
    Sketcher.Constraint("DistanceY", -1, 1, 8, 2, 19.0),
    Sketcher.Constraint("DistanceY", -1, 1, 12, 2, 26.0),
    Sketcher.Constraint("DistanceX", 0, 2, -1, 1, 2.5),
])
pocket10 = body.newObject("PartDesign::Pocket", "Pocket009")
pocket10.Profile = sketch13
pocket10.Length = 2

# Sketch on YZ plane
sketch14 = body.newObject("Sketcher::SketchObject", "Sketch013")
sketch14.AttachmentSupport = (doc.getObject("YZ_Plane"), [""])
sketch14.MapMode = "FlatFace"
sketch14.AttachmentOffset = App.Placement(App.Vector(0, 0, 75), App.Rotation())
sketch14.addGeometry([
    Part.LineSegment(App.Vector(73.8, -10.5, 0), App.Vector(58.8, -10.5, 0)),  # 0
    Part.LineSegment(App.Vector(58.8, -10.5, 0), App.Vector(58.8, -25.5, 0)),  # 1
    Part.LineSegment(App.Vector(58.8, -25.5, 0), App.Vector(73.8, -25.5, 0)),  # 2
    Part.LineSegment(App.Vector(73.8, -25.5, 0), App.Vector(73.8, -10.5, 0)),  # 3
    Part.LineSegment(App.Vector(73.8, 20.5, 0), App.Vector(58.8, 20.5, 0)),  # 4
    Part.LineSegment(App.Vector(58.8, 20.5, 0), App.Vector(58.8, 5.5, 0)),  # 5
    Part.LineSegment(App.Vector(58.8, 5.5, 0), App.Vector(73.8, 5.5, 0)),  # 6
    Part.LineSegment(App.Vector(73.8, 5.5, 0), App.Vector(73.8, 20.5, 0)),  # 7
], False)
sketch14.addConstraint([
    Sketcher.Constraint("Coincident", 0, 2, 1, 1),
    Sketcher.Constraint("Coincident", 1, 2, 2, 1),
    Sketcher.Constraint("Coincident", 2, 2, 3, 1),
    Sketcher.Constraint("Coincident", 3, 2, 0, 1),
    Sketcher.Constraint("Coincident", 4, 2, 5, 1),
    Sketcher.Constraint("Coincident", 5, 2, 6, 1),
    Sketcher.Constraint("Coincident", 6, 2, 7, 1),
    Sketcher.Constraint("Coincident", 7, 2, 4, 1),
    Sketcher.Constraint("Horizontal", 0),
    Sketcher.Constraint("Vertical", 1),
    Sketcher.Constraint("Horizontal", 2),
    Sketcher.Constraint("Vertical", 3),
    Sketcher.Constraint("Horizontal", 4),
    Sketcher.Constraint("Vertical", 5),
    Sketcher.Constraint("Horizontal", 6),
    Sketcher.Constraint("Vertical", 7),
    Sketcher.Constraint("Vertical", 1, 2, 4, 2),
    Sketcher.Constraint("Vertical", 3, 2, 6, 2),
    Sketcher.Constraint("Equal", 6, 1),
    Sketcher.Constraint("Equal", 3, 5),
    Sketcher.Constraint("DistanceX", 0, 2, 0, 1, 15.0),
    Sketcher.Constraint("DistanceY", 0, 2, 4, 2, 31.0),
    Sketcher.Constraint("DistanceX", -1, 1, 0, 2, 58.8),
    Sketcher.Constraint("DistanceY", 0, 2, -1, 1, 10.5),
])
pocket11 = body.newObject("PartDesign::Pocket", "Pocket010")
pocket11.Profile = sketch14
pocket11.Length = 2

# Sketch on XZ plane
sketch15 = body.newObject("Sketcher::SketchObject", "Sketch014")
sketch15.AttachmentSupport = (doc.getObject("XZ_Plane"), [""])
sketch15.MapMode = "FlatFace"
sketch15.AttachmentOffset = App.Placement(App.Vector(0, 0, -74), App.Rotation())
sketch15.addGeometry([
    Part.LineSegment(App.Vector(-73, 63.5, 0), App.Vector(-73, 65.5, 0)),  # 0
    Part.LineSegment(App.Vector(-73, 65.5, 0), App.Vector(-71, 65.5, 0)),  # 1
    Part.LineSegment(App.Vector(-71, 65.5, 0), App.Vector(-73, 63.5, 0)),  # 2
    Part.LineSegment(App.Vector(71, 65.5, 0), App.Vector(73, 65.5, 0)),  # 3
    Part.LineSegment(App.Vector(73, 65.5, 0), App.Vector(73, 63.5, 0)),  # 4
    Part.LineSegment(App.Vector(73, 63.5, 0), App.Vector(71, 65.5, 0)),  # 5
    Part.LineSegment(App.Vector(73, -63.5, 0), App.Vector(73, -65.5, 0)),  # 6
    Part.LineSegment(App.Vector(73, -65.5, 0), App.Vector(71, -65.5, 0)),  # 7
    Part.LineSegment(App.Vector(71, -65.5, 0), App.Vector(73, -63.5, 0)),  # 8
], False)
sketch15.addConstraint([
    Sketcher.Constraint("Coincident", 0, 2, 1, 1),
    Sketcher.Constraint("Coincident", 1, 2, 2, 1),
    Sketcher.Constraint("Coincident", 2, 2, 0, 1),
    Sketcher.Constraint("Coincident", 3, 2, 4, 1),
    Sketcher.Constraint("Coincident", 4, 2, 5, 1),
    Sketcher.Constraint("Coincident", 5, 2, 3, 1),
    Sketcher.Constraint("Coincident", 6, 2, 7, 1),
    Sketcher.Constraint("Coincident", 7, 2, 8, 1),
    Sketcher.Constraint("Coincident", 8, 2, 6, 1),
    Sketcher.Constraint("Vertical", 0),
    Sketcher.Constraint("Horizontal", 1),
    Sketcher.Constraint("Horizontal", 3),
    Sketcher.Constraint("Vertical", 4),
    Sketcher.Constraint("Vertical", 6),
    Sketcher.Constraint("Horizontal", 7),
    Sketcher.Constraint("Symmetric", 0, 2, 6, 2, -1, 1),
    Sketcher.Constraint("Symmetric", 0, 2, 3, 2, -2),
    Sketcher.Constraint("Perpendicular", 2, 5),
    Sketcher.Constraint("Perpendicular", 5, 8),
    Sketcher.Constraint("Horizontal", 2, 2, 4, 2),
    Sketcher.Constraint("Vertical", 5, 2, 7, 2),
    Sketcher.Constraint("Equal", 1, 3),
    Sketcher.Constraint("DistanceX", 1, 1, 1, 2, 2.0),
    Sketcher.Constraint("DistanceX", 0, 2, -1, 1, 73.0),
    Sketcher.Constraint("DistanceY", 6, 2, 4, 2, 129.0),
])
pad4 = body.newObject("PartDesign::Pad", "Pad003")
pad4.Profile = sketch15
pad4.Length = 74

# Sketch on XZ plane
sketch16 = body.newObject("Sketcher::SketchObject", "Sketch015")
sketch16.AttachmentSupport = (doc.getObject("XZ_Plane"), [""])
sketch16.MapMode = "FlatFace"
sketch16.AttachmentOffset = App.Placement(App.Vector(0, 0, -74), App.Rotation())
sketch16.addGeometry([
    Part.LineSegment(App.Vector(-73, -65.5, 0), App.Vector(-73, -63.5, 0)),
    Part.LineSegment(App.Vector(-73, -63.5, 0), App.Vector(-71, -65.5, 0)),
    Part.LineSegment(App.Vector(-71, -65.5, 0), App.Vector(-73, -65.5, 0)),
], False)
sketch16.addConstraint([
    Sketcher.Constraint("Coincident", 0, 2, 1, 1),
    Sketcher.Constraint("Coincident", 1, 2, 2, 1),
    Sketcher.Constraint("Coincident", 2, 2, 0, 1),
    Sketcher.Constraint("Vertical", 0),
    Sketcher.Constraint("Horizontal", 2),
    Sketcher.Constraint("Equal", 2, 0),
    Sketcher.Constraint("DistanceX", 2, 2, 2, 1, 2.0),
    Sketcher.Constraint("DistanceX", 0, 2, -1, 1, 73.0),
    Sketcher.Constraint("DistanceY", 0, 2, -1, 1, 63.5),
])
pad5 = body.newObject("PartDesign::Pad", "Pad004")
pad5.Profile = sketch16
pad5.Length = 27.2

# Sketch on XZ plane
sketch17 = body.newObject("Sketcher::SketchObject", "Sketch016")
sketch17.AttachmentSupport = (doc.getObject("XZ_Plane"), [""])
sketch17.MapMode = "FlatFace"
sketch17.AttachmentOffset = App.Placement(App.Vector(0, 0, -6.8), App.Rotation())
sketch17.addGeometry([
    Part.LineSegment(App.Vector(-71, -65.5, 0), App.Vector(-73, -65.5, 0)),
    Part.LineSegment(App.Vector(-73, -65.5, 0), App.Vector(-73, -63.5, 0)),
    Part.LineSegment(App.Vector(-73, -63.5, 0), App.Vector(-71, -65.5, 0)),
], False)
sketch17.addConstraint([
    Sketcher.Constraint("Coincident", 0, 2, 1, 1),
    Sketcher.Constraint("Coincident", 1, 2, 2, 1),
    Sketcher.Constraint("Coincident", 2, 2, 0, 1),
    Sketcher.Constraint("Horizontal", 0),
    Sketcher.Constraint("Vertical", 1),
    Sketcher.Constraint("Equal", 0, 1),
    Sketcher.Constraint("DistanceX", 0, 2, 0, 1, 2.0),
    Sketcher.Constraint("DistanceX", 0, 2, -1, 1, 73.0),
    Sketcher.Constraint("DistanceY", 0, 2, -1, 1, 65.5),
])
pad6 = body.newObject("PartDesign::Pad", "Pad005")
pad6.Profile = sketch17
pad6.Type = "UpToFirst"

doc.recompute()
